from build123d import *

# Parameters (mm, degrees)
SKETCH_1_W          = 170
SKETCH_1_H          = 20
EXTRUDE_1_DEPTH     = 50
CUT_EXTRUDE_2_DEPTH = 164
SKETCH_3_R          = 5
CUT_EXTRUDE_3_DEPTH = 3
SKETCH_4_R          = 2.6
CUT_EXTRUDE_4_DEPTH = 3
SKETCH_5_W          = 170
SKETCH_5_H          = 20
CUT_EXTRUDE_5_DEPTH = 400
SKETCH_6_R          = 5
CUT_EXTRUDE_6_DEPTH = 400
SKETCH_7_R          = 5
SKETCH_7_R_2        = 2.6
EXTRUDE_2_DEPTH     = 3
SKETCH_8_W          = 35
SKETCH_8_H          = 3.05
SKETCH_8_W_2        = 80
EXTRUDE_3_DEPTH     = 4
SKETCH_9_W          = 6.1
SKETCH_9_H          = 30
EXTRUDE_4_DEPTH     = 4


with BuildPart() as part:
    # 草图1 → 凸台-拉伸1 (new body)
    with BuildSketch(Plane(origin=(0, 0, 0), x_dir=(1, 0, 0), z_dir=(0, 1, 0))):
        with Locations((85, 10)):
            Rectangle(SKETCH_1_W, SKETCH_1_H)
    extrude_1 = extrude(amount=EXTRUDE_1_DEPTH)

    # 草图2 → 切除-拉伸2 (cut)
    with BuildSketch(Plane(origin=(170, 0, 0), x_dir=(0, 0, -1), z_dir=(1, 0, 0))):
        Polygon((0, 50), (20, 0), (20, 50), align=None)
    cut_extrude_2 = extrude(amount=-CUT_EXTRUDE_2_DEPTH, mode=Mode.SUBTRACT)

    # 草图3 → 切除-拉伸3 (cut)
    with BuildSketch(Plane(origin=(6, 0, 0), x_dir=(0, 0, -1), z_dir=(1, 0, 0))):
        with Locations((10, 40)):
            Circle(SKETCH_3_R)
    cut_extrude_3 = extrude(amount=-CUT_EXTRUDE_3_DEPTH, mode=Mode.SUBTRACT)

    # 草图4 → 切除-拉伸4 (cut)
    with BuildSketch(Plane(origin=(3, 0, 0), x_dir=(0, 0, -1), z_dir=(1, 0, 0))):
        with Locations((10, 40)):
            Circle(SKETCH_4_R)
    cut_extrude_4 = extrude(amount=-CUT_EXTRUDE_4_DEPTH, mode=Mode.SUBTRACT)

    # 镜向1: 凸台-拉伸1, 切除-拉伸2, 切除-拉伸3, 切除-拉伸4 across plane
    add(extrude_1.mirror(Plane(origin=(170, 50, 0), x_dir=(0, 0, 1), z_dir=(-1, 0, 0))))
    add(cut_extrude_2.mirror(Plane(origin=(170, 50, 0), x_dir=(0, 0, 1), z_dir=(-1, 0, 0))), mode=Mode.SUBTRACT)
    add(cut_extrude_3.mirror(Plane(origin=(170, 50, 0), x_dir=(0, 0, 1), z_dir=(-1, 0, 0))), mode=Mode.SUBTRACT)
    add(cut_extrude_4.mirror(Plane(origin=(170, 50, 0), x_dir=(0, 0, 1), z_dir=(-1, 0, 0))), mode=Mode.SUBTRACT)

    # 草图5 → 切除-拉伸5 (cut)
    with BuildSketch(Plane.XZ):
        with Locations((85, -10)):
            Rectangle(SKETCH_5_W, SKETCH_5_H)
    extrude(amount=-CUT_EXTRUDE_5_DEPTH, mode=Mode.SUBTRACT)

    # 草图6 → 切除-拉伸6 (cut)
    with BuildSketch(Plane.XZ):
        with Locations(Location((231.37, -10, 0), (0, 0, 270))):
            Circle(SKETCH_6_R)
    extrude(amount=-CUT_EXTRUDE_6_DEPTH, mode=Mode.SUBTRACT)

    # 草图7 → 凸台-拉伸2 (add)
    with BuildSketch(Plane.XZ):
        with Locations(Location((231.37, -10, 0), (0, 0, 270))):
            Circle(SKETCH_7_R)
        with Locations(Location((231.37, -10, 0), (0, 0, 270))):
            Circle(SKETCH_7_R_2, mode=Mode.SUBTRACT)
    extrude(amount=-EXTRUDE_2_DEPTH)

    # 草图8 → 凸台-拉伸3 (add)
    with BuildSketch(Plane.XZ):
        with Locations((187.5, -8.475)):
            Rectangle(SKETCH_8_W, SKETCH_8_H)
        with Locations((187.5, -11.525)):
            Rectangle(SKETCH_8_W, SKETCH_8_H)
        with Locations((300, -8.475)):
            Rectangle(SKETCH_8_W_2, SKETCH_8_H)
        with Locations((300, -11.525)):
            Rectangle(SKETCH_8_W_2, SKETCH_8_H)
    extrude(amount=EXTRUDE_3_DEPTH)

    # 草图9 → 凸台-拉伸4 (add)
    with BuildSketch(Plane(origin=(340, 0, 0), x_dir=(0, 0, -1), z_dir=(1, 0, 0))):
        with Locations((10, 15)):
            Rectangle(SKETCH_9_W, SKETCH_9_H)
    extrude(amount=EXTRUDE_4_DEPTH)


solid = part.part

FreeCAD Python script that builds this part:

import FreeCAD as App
import Part
import Sketcher

V = App.Vector

doc = App.newDocument("Part")
body = doc.addObject("PartDesign::Body", "Body")

sketch1 = body.newObject("Sketcher::SketchObject", "Sketch")
sketch1.AttachmentSupport = (doc.getObject("XZ_Plane"), [""])
sketch1.MapMode = "FlatFace"
sketch1.addGeometry([
    Part.LineSegment(V(0, -20, 0), V(0, 0, 0)),
    Part.LineSegment(V(0, 0, 0), V(170, 0, 0)),
    Part.LineSegment(V(170, 0, 0), V(170, -20, 0)),
    Part.LineSegment(V(170, -20, 0), V(0, -20, 0)),
], False)
sketch1.addConstraint([
    Sketcher.Constraint("Coincident", 0, 2, 1, 1),
    Sketcher.Constraint("Coincident", 1, 2, 2, 1),
    Sketcher.Constraint("Coincident", 2, 2, 3, 1),
    Sketcher.Constraint("Coincident", 3, 2, 0, 1),
    Sketcher.Constraint("Vertical", 0),
    Sketcher.Constraint("Horizontal", 1),
    Sketcher.Constraint("Vertical", 2),
    Sketcher.Constraint("Horizontal", 3),
    Sketcher.Constraint("Coincident", 0, 2, -1, 1),
    Sketcher.Constraint("DistanceX", 1, 1, 1, 2, 170.0),
    Sketcher.Constraint("DistanceY", 0, 1, 0, 2, 20.0),
])
pad1 = body.newObject("PartDesign::Pad", "Pad")
pad1.Profile = sketch1
pad1.Length = 50
pad1.Reversed = True

sketch2 = body.newObject("Sketcher::SketchObject", "Sketch001")
sketch2.AttachmentSupport = (doc.getObject("YZ_Plane"), [""])
sketch2.MapMode = "FlatFace"
sketch2.AttachmentOffset = App.Placement(V(0, 0, 170), App.Rotation())
sketch2.addGeometry([
    Part.LineSegment(V(50, 0, 0), V(0, -20, 0)),
    Part.LineSegment(V(0, -20, 0), V(50, -20, 0)),
    Part.LineSegment(V(50, -20, 0), V(50, 0, 0)),
], False)
sketch2.addConstraint([
    Sketcher.Constraint("Coincident", 0, 2, 1, 1),
    Sketcher.Constraint("Coincident", 1, 2, 2, 1),
    Sketcher.Constraint("Coincident", 2, 2, 0, 1),
    Sketcher.Constraint("Horizontal", 1),
    Sketcher.Constraint("Vertical", 2),
    Sketcher.Constraint("PointOnObject", 0, 2, -2),
    Sketcher.Constraint("PointOnObject", 2, 2, -1),
    Sketcher.Constraint("DistanceX", 1, 1, 1, 2, 50.0),
    Sketcher.Constraint("DistanceY", 2, 1, 2, 2, 20.0),
])
pocket1 = body.newObject("PartDesign::Pocket", "Pocket")
pocket1.Profile = sketch2
pocket1.Length = 164

sketch3 = body.newObject("Sketcher::SketchObject", "Sketch002")
sketch3.AttachmentSupport = (doc.getObject("YZ_Plane"), [""])
sketch3.MapMode = "FlatFace"
sketch3.AttachmentOffset = App.Placement(V(0, 0, 6), App.Rotation())
sketch3.addGeometry(Part.Circle(V(40, -10, 0), V(0, 0, 1), 5), False)
sketch3.addConstraint([
    Sketcher.Constraint("Diameter", 0, 10.0),
    Sketcher.Constraint("DistanceX", -1, 1, 0, 3, 40.0),
    Sketcher.Constraint("DistanceY", 0, 3, -1, 1, 10.0),
])
pocket2 = body.newObject("PartDesign::Pocket", "Pocket001")
pocket2.Profile = sketch3
pocket2.Length = 3

sketch4 = body.newObject("Sketcher::SketchObject", "Sketch003")
sketch4.AttachmentSupport = (doc.getObject("YZ_Plane"), [""])
sketch4.MapMode = "FlatFace"
sketch4.AttachmentOffset = App.Placement(V(0, 0, 3), App.Rotation())
sketch4.addGeometry(Part.Circle(V(40, -10, 0), V(0, 0, 1), 2.6), False)
sketch4.addConstraint([
    Sketcher.Constraint("Diameter", 0, 5.2),
    Sketcher.Constraint("DistanceX", -1, 1, 0, 3, 40.0),
    Sketcher.Constraint("DistanceY", 0, 3, -1, 1, 10.0),
])
pocket3 = body.newObject("PartDesign::Pocket", "Pocket002")
pocket3.Profile = sketch4
pocket3.Length = 3
doc.recompute()

datumplane = body.newObject("PartDesign::Plane", "DatumPlane")
datumplane.AttachmentSupport = (doc.getObject("YZ_Plane"), [""])
datumplane.MapMode = "FlatFace"
datumplane.AttachmentOffset = App.Placement(V(0, 0, 170), App.Rotation())
mirrored = body.newObject("PartDesign::Mirrored", "Mirrored")
mirrored.Originals = [pad1, pocket1, pocket2, pocket3]
mirrored.MirrorPlane = (datumplane, [""])
body.Tip = mirrored

sketch5 = body.newObject("Sketcher::SketchObject", "Sketch004")
sketch5.AttachmentSupport = (doc.getObject("XZ_Plane"), [""])
sketch5.MapMode = "FlatFace"
sketch5.addGeometry([
    Part.LineSegment(V(0, 0, 0), V(0, -20, 0)),
    Part.LineSegment(V(0, -20, 0), V(170, -20, 0)),
    Part.LineSegment(V(170, -20, 0), V(170, 0, 0)),
    Part.LineSegment(V(170, 0, 0), V(0, 0, 0)),
], False)
sketch5.addConstraint([
    Sketcher.Constraint("Coincident", 0, 2, 1, 1),
    Sketcher.Constraint("Coincident", 1, 2, 2, 1),
    Sketcher.Constraint("Coincident", 2, 2, 3, 1),
    Sketcher.Constraint("Coincident", 3, 2, 0, 1),
    Sketcher.Constraint("Vertical", 0),
    Sketcher.Constraint("Horizontal", 1),
    Sketcher.Constraint("Vertical", 2),
    Sketcher.Constraint("Horizontal", 3),
    Sketcher.Constraint("Coincident", 3, 2, -1, 1),
    Sketcher.Constraint("DistanceX", 1, 1, 1, 2, 170.0),
    Sketcher.Constraint("DistanceY", 0, 2, 0, 1, 20.0),
])
pocket4 = body.newObject("PartDesign::Pocket", "Pocket003")
pocket4.Profile = sketch5
pocket4.Length = 400

sketch6 = body.newObject("Sketcher::SketchObject", "Sketch005")
sketch6.AttachmentSupport = (doc.getObject("XZ_Plane"), [""])
sketch6.MapMode = "FlatFace"
sketch6.addGeometry(Part.Circle(V(231.37, -10, 0), V(0, 0, 1), 5), False)
sketch6.addConstraint([
    Sketcher.Constraint("Diameter", 0, 10.0),
    Sketcher.Constraint("DistanceY", 0, 3, -1, 1, 10.0),
    Sketcher.Constraint("DistanceX", -1, 1, 0, 3, 231.37),
])
pocket5 = body.newObject("PartDesign::Pocket", "Pocket004")
pocket5.Profile = sketch6
pocket5.Length = 400

sketch7 = body.newObject("Sketcher::SketchObject", "Sketch006")
sketch7.AttachmentSupport = (doc.getObject("XZ_Plane"), [""])
sketch7.MapMode = "FlatFace"
sketch7.addGeometry([
    Part.Circle(V(231.37, -10, 0), V(0, 0, 1), 5),
    Part.Circle(V(231.37, -10, 0), V(0, 0, 1), 2.6),
], False)
sketch7.addConstraint([
    Sketcher.Constraint("Coincident", 1, 3, 0, 3),
    Sketcher.Constraint("Diameter", 0, 10.0),
    Sketcher.Constraint("Diameter", 1, 5.2),
    Sketcher.Constraint("DistanceY", 0, 3, -1, 1, 10.0),
    Sketcher.Constraint("DistanceX", -1, 1, 0, 3, 231.37),
])
pad2 = body.newObject("PartDesign::Pad", "Pad001")
pad2.Profile = sketch7
pad2.Length = 3
pad2.Reversed = True

sketch8 = body.newObject("Sketcher::SketchObject", "Sketch007")
sketch8.AttachmentSupport = (doc.getObject("XZ_Plane"), [""])
sketch8.MapMode = "FlatFace"
sketch8.addGeometry([
    Part.LineSegment(V(170, -6.95, 0), V(170, -13.05, 0)),
    Part.LineSegment(V(170, -13.05, 0), V(205, -13.05, 0)),
    Part.LineSegment(V(205, -13.05, 0), V(205, -6.95, 0)),
    Part.LineSegment(V(205, -6.95, 0), V(170, -6.95, 0)),
    Part.LineSegment(V(260, -6.95, 0), V(260, -13.05, 0)),
    Part.LineSegment(V(260, -13.05, 0), V(340, -13.05, 0)),
    Part.LineSegment(V(340, -13.05, 0), V(340, -6.95, 0)),
    Part.LineSegment(V(340, -6.95, 0), V(260, -6.95, 0)),
], False)
sketch8.addConstraint([
    Sketcher.Constraint("Coincident", 0, 2, 1, 1),
    Sketcher.Constraint("Coincident", 1, 2, 2, 1),
    Sketcher.Constraint("Coincident", 2, 2, 3, 1),
    Sketcher.Constraint("Coincident", 3, 2, 0, 1),
    Sketcher.Constraint("Coincident", 4, 2, 5, 1),
    Sketcher.Constraint("Coincident", 5, 2, 6, 1),
    Sketcher.Constraint("Coincident", 6, 2, 7, 1),
    Sketcher.Constraint("Coincident", 7, 2, 4, 1),
    Sketcher.Constraint("Vertical", 0),
    Sketcher.Constraint("Horizontal", 1),
    Sketcher.Constraint("Vertical", 2),
    Sketcher.Constraint("Horizontal", 3),
    Sketcher.Constraint("Vertical", 4),
    Sketcher.Constraint("Horizontal", 5),
    Sketcher.Constraint("Vertical", 6),
    Sketcher.Constraint("Horizontal", 7),
    Sketcher.Constraint("Horizontal", 1, 2, 4, 2),
    Sketcher.Constraint("Horizontal", 3, 2, 6, 2),
    Sketcher.Constraint("DistanceX", 1, 1, 1, 2, 35.0),
    Sketcher.Constraint("DistanceX", 5, 1, 5, 2, 80.0),
    Sketcher.Constraint("DistanceY", 0, 2, 0, 1, 6.1),
    Sketcher.Constraint("DistanceX", -1, 1, 0, 2, 170.0),
    Sketcher.Constraint("DistanceX", -1, 1, 4, 2, 260.0),
    Sketcher.Constraint("DistanceY", 0, 2, -1, 1, 13.05),
])
pad3 = body.newObject("PartDesign::Pad", "Pad002")
pad3.Profile = sketch8
pad3.Length = 4

sketch9 = body.newObject("Sketcher::SketchObject", "Sketch008")
sketch9.AttachmentSupport = (doc.getObject("YZ_Plane"), [""])
sketch9.MapMode = "FlatFace"
sketch9.AttachmentOffset = App.Placement(V(0, 0, 340), App.Rotation())
sketch9.addGeometry([
    Part.LineSegment(V(30, -6.95, 0), V(0, -6.95, 0)),
    Part.LineSegment(V(0, -6.95, 0), V(0, -13.05, 0)),
    Part.LineSegment(V(0, -13.05, 0), V(30, -13.05, 0)),
    Part.LineSegment(V(30, -13.05, 0), V(30, -6.95, 0)),
], False)
sketch9.addConstraint([
    Sketcher.Constraint("Coincident", 0, 2, 1, 1),
    Sketcher.Constraint("Coincident", 1, 2, 2, 1),
    Sketcher.Constraint("Coincident", 2, 2, 3, 1),
    Sketcher.Constraint("Coincident", 3, 2, 0, 1),
    Sketcher.Constraint("Horizontal", 0),
    Sketcher.Constraint("Vertical", 1),
    Sketcher.Constraint("Horizontal", 2),
    Sketcher.Constraint("Vertical", 3),
    Sketcher.Constraint("PointOnObject", 0, 2, -2),
    Sketcher.Constraint("DistanceX", 0, 2, 0, 1, 30.0),
    Sketcher.Constraint("DistanceY", 1, 2, 1, 1, 6.1),
    Sketcher.Constraint("DistanceY", 0, 2, -1, 1, 6.95),
])
pad4 = body.newObject("PartDesign::Pad", "Pad003")
pad4.Profile = sketch9
pad4.Length = 4

doc.recompute()
